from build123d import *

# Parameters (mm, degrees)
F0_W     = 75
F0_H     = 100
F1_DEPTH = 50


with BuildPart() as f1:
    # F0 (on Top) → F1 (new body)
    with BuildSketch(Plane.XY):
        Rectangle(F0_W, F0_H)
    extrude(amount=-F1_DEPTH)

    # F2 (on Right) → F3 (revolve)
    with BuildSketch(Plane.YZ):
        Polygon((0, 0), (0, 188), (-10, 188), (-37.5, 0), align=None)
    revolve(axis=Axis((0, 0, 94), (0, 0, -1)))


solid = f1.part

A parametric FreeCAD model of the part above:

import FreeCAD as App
import Part
import Sketcher

V = App.Vector

doc = App.newDocument("Part")
params = doc.addObject("Spreadsheet::Sheet", "Params")
for row, (alias, value) in enumerate([
    ("sketch1_width", "75 mm"),
    ("sketch1_height", "100 mm"),
    ("pad1_length", "50 mm"),
    ("sketch2_width", "10 mm"),
    ("sketch2_height", "188 mm"),
    ("sketch2_width2", "37.5 mm"),
    ("revolution_angle", "360 deg"),
], start=1):
    params.set(f"A{row}", alias)
    params.set(f"B{row}", "=" + value)
    params.setAlias(f"B{row}", alias)

body = doc.addObject("PartDesign::Body", "Body")

# Sketch on XY plane
sketch1 = body.newObject("Sketcher::SketchObject", "Sketch")
sketch1.AttachmentSupport = (doc.getObject("XY_Plane"), [""])
sketch1.MapMode = "FlatFace"
sketch1.addGeometry(Part.LineSegment(V(-37.5, 50, 0), V(-37.5, -50, 0)), False)
sketch1.addGeometry(Part.LineSegment(V(-37.5, -50, 0), V(37.5, -50, 0)), False)
sketch1.addGeometry(Part.LineSegment(V(37.5, -50, 0), V(37.5, 50, 0)), False)
sketch1.addGeometry(Part.LineSegment(V(37.5, 50, 0), V(-37.5, 50, 0)), False)
sketch1.addConstraint(Sketcher.Constraint("Coincident", 0, 2, 1, 1))
sketch1.addConstraint(Sketcher.Constraint("Coincident", 1, 2, 2, 1))
sketch1.addConstraint(Sketcher.Constraint("Coincident", 2, 2, 3, 1))
sketch1.addConstraint(Sketcher.Constraint("Coincident", 3, 2, 0, 1))
sketch1.addConstraint(Sketcher.Constraint("Vertical", 0))
sketch1.addConstraint(Sketcher.Constraint("Horizontal", 1))
sketch1.addConstraint(Sketcher.Constraint("Vertical", 2))
sketch1.addConstraint(Sketcher.Constraint("Horizontal", 3))
sketch1.addConstraint(Sketcher.Constraint("Symmetric", 0, 2, 2, 2, -1, 1))
sketch1.addConstraint(Sketcher.Constraint("DistanceX", 1, 1, 1, 2, 75.0))
sketch1.addConstraint(Sketcher.Constraint("DistanceY", 0, 2, 0, 1, 100.0))
sketch1.setExpression("Constraints[9]", "Params.sketch1_width")
sketch1.setExpression("Constraints[10]", "Params.sketch1_height")
pad1 = body.newObject("PartDesign::Pad", "Pad")
pad1.Profile = sketch1
pad1.setExpression("Length", "Params.pad1_length")
pad1.Reversed = True

# Sketch on YZ plane
sketch2 = body.newObject("Sketcher::SketchObject", "Sketch001")
sketch2.AttachmentSupport = (doc.getObject("YZ_Plane"), [""])
sketch2.MapMode = "FlatFace"
sketch2.addGeometry(Part.LineSegment(V(0, 0, 0), V(0, 188, 0)), False)
sketch2.addGeometry(Part.LineSegment(V(0, 188, 0), V(-10, 188, 0)), False)
sketch2.addGeometry(Part.LineSegment(V(-10, 188, 0), V(-37.5, 0, 0)), False)
sketch2.addGeometry(Part.LineSegment(V(-37.5, 0, 0), V(0, 0, 0)), False)
sketch2.addConstraint(Sketcher.Constraint("Coincident", 0, 2, 1, 1))
sketch2.addConstraint(Sketcher.Constraint("Coincident", 1, 2, 2, 1))
sketch2.addConstraint(Sketcher.Constraint("Coincident", 2, 2, 3, 1))
sketch2.addConstraint(Sketcher.Constraint("Coincident", 3, 2, 0, 1))
sketch2.addConstraint(Sketcher.Constraint("Vertical", 0))
sketch2.addConstraint(Sketcher.Constraint("Horizontal", 1))
sketch2.addConstraint(Sketcher.Constraint("Horizontal", 3))
sketch2.addConstraint(Sketcher.Constraint("Coincident", 3, 2, -1, 1))
sketch2.addConstraint(Sketcher.Constraint("DistanceX", 1, 2, 1, 1, 10.0))
sketch2.addConstraint(Sketcher.Constraint("DistanceY", 0, 1, 0, 2, 188.0))
sketch2.addConstraint(Sketcher.Constraint("DistanceX", 3, 1, 3, 2, 37.5))
sketch2.setExpression("Constraints[8]", "Params.sketch2_width")
sketch2.setExpression("Constraints[9]", "Params.sketch2_height")
sketch2.setExpression("Constraints[10]", "Params.sketch2_width2")
revolution = body.newObject("PartDesign::Revolution", "Revolution")
revolution.Profile = sketch2
revolution.ReferenceAxis = (sketch2, ["V_Axis"])
revolution.setExpression("Angle", "Params.revolution_angle")

doc.recompute()
